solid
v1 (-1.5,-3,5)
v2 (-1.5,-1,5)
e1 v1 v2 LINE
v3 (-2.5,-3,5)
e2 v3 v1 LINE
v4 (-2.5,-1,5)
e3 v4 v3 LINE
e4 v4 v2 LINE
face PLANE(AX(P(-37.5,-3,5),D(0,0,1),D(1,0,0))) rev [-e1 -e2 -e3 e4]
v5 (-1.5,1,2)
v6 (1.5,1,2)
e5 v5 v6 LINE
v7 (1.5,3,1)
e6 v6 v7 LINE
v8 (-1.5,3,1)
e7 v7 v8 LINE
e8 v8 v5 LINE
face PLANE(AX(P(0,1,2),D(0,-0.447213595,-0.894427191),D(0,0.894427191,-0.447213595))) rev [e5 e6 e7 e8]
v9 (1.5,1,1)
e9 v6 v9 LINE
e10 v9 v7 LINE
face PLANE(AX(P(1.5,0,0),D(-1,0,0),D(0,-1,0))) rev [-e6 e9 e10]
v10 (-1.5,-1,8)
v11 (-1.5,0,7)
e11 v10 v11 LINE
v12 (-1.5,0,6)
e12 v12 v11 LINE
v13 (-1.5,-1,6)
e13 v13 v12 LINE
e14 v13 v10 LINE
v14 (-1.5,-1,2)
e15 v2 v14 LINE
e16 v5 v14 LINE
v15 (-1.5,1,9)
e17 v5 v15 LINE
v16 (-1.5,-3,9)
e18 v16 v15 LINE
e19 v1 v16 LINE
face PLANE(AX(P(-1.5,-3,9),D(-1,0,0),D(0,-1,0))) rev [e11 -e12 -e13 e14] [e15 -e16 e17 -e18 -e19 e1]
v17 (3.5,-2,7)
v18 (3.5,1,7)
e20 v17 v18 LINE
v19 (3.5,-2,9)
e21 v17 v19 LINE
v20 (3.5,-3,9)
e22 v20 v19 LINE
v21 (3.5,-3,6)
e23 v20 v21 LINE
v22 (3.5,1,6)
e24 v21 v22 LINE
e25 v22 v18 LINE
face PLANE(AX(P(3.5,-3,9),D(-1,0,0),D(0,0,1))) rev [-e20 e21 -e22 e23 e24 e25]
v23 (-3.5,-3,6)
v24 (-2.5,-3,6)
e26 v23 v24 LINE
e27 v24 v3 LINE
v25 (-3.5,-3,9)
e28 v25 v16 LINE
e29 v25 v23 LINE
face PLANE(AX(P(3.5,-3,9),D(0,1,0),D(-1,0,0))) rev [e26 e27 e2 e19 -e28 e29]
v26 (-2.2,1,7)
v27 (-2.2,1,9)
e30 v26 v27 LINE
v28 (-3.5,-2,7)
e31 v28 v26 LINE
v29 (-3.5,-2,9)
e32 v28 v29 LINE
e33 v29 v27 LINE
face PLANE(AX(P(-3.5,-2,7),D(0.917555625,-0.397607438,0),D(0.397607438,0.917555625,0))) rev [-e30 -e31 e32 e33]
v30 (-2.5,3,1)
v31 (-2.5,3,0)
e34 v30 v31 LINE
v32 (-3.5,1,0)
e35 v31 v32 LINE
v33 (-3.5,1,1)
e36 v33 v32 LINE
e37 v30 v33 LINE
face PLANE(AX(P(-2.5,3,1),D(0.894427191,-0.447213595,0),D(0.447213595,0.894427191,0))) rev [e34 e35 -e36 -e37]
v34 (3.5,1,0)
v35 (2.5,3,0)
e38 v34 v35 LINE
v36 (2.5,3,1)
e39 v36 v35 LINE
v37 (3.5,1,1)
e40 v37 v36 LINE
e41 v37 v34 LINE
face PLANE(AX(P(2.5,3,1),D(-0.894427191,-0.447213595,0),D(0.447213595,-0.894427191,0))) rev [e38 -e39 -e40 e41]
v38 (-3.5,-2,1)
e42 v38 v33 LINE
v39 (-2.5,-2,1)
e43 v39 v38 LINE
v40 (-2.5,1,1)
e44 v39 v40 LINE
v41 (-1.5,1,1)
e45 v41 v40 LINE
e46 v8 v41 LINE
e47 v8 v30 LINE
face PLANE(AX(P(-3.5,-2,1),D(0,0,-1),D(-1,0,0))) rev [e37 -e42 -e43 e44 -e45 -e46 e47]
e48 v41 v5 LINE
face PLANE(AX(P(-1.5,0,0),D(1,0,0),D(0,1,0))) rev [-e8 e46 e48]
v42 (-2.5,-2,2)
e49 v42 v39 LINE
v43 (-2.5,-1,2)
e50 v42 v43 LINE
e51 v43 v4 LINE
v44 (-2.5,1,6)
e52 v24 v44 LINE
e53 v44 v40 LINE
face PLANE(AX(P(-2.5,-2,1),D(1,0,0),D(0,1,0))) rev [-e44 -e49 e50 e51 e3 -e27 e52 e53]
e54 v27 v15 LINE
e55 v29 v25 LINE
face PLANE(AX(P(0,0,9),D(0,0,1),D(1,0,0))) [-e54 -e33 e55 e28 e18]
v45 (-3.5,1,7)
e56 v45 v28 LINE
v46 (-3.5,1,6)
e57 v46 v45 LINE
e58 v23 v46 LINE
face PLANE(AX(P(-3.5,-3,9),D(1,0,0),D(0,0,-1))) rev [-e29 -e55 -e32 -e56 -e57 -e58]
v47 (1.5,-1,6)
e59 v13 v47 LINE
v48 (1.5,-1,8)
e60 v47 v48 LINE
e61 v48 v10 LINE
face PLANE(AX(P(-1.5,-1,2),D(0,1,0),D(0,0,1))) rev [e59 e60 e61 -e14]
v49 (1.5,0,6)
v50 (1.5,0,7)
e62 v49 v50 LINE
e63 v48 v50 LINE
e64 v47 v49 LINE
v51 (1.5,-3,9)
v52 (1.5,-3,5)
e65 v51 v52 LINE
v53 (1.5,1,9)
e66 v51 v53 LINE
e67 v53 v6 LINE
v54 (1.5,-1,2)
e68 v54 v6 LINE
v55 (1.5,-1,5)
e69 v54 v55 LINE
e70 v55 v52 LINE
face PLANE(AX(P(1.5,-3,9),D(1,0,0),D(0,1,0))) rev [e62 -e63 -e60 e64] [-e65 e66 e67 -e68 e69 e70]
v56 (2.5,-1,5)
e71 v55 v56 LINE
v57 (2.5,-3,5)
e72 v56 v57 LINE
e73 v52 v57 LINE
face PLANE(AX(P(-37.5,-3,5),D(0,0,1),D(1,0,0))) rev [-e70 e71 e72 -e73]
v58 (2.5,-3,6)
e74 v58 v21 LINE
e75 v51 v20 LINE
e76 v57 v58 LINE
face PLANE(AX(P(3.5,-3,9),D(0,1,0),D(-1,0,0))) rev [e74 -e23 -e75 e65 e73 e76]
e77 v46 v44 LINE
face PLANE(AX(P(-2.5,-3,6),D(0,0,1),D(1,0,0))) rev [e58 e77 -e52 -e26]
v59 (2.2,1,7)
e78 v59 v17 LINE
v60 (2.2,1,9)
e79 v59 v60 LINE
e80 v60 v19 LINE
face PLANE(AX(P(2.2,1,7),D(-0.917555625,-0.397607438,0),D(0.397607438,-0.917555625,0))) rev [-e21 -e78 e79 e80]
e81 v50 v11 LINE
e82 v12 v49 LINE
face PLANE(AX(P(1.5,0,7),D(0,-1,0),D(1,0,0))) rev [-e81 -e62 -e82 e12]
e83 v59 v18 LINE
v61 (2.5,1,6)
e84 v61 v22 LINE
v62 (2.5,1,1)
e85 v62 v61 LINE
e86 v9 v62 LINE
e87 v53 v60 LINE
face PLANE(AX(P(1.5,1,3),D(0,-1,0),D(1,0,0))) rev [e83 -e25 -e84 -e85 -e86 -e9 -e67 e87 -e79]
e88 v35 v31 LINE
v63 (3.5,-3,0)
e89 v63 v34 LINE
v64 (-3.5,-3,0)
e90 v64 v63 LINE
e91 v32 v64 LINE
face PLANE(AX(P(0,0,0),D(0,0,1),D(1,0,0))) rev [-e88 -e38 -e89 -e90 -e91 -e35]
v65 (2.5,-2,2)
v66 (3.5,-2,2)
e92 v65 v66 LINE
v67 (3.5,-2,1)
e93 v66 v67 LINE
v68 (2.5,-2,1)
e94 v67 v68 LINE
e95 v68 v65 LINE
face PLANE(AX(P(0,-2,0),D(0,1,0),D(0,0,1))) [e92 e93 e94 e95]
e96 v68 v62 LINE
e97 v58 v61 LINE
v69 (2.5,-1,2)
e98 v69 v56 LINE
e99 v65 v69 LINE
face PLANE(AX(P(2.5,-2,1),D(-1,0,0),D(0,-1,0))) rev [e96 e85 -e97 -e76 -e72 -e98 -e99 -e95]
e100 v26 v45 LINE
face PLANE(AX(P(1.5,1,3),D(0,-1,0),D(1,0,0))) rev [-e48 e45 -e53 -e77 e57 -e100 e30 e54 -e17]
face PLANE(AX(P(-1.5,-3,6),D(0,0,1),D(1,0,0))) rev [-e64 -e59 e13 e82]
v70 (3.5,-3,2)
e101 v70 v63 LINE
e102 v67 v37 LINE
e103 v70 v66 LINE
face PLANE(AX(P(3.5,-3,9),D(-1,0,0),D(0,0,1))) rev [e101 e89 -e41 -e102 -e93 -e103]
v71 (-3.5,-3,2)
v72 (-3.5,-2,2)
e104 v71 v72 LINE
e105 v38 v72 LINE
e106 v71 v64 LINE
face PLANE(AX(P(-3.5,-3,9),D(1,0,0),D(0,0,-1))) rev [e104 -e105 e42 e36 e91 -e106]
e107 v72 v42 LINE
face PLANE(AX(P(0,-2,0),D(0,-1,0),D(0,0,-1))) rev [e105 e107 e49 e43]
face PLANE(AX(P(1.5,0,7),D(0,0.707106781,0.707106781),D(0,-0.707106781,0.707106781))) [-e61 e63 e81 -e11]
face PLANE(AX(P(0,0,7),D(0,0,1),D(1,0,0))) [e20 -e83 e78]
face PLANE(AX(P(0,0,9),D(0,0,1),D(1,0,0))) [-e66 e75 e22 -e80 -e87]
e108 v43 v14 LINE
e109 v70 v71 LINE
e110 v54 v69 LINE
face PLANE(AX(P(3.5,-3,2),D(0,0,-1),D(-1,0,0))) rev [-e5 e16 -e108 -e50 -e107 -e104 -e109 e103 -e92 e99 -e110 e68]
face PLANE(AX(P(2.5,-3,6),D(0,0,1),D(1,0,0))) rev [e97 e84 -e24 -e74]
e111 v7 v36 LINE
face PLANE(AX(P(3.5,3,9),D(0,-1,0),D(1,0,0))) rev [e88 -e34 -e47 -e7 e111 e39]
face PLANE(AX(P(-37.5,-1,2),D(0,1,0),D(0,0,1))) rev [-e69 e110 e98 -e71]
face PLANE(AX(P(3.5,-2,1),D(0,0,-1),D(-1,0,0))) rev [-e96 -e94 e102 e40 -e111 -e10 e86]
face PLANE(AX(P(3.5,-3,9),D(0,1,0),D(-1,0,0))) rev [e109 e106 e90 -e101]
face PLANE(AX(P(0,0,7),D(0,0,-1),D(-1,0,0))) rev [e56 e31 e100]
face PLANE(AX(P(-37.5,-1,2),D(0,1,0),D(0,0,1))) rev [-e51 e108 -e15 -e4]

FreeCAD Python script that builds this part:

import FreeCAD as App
import Part
import Sketcher

V = App.Vector
Q = App.Units.Quantity


def add_polygon(sketch, points):
    """Adds a closed chain of lines whose ends are joined by coincident constraints."""
    first, n = sketch.GeometryCount, len(points)
    for a, b in zip(points, points[1:] + points[:1]):
        sketch.addGeometry(Part.LineSegment(App.Vector(*a, 0), App.Vector(*b, 0)), False)
    for i in range(n):
        sketch.addConstraint(Sketcher.Constraint("Coincident", first + i, 2, first + (i + 1) % n, 1))

doc = App.newDocument("Part")
params = doc.addObject("Spreadsheet::Sheet", "Params")
for row, (alias, value) in enumerate([
    ("sketch1_width", "7 mm"),
    ("sketch1_height", "6 mm"),
    ("pad1_length", "9 mm"),
    ("sketch2_width", "3 mm"),
    ("sketch2_height", "1 mm"),
    ("sketch3_width", "1 mm"),
    ("sketch3_height", "2 mm"),
    ("pocket2_length", "1 mm"),
    ("sketch4_width", "1 mm"),
    ("pocket3_length", "5 mm"),
    ("sketch5_width", "1 mm"),
    ("sketch5_height", "4 mm"),
    ("sketch6_width", "1 mm"),
    ("sketch6_height", "5 mm"),
    ("pocket5_length", "2 mm"),
    ("sketch7_width", "3 mm"),
    ("sketch7_height", "2 mm"),
    ("pocket6_length", "6 mm"),
    ("sketch8_width", "3 mm"),
    ("sketch8_height", "1 mm"),
    ("pocket7_length", "6 mm"),
    ("sketch9_width", "3 mm"),
    ("pocket8_length", "6 mm"),
    ("sketch10_width", "3 mm"),
    ("sketch10_height", "4 mm"),
    ("sketch11_width", "3 mm"),
    ("sketch11_height", "1 mm"),
    ("pocket10_length", "6 mm"),
    ("sketch12_width", "7 mm"),
    ("sketch12_height", "2 mm"),
    ("pocket11_length", "7 mm"),
    ("sketch13_width", "3 mm"),
    ("sketch13_height", "1 mm"),
    ("sketch13_width2", "0.7 mm"),
    ("pocket12_length", "2 mm"),
    ("sketch14_width", "3 mm"),
    ("sketch14_height", "1 mm"),
    ("pocket13_length", "2 mm"),
    ("sketch15_width", "3 mm"),
    ("pocket14_length", "2 mm"),
    ("sketch16_width", "2 mm"),
    ("sketch16_height", "1 mm"),
    ("pocket15_length", "1 mm"),
    ("sketch17_width", "2 mm"),
    ("sketch17_height", "1 mm"),
    ("pocket16_length", "1 mm"),
    ("sketch18_width", "2 mm"),
    ("sketch18_height", "3 mm"),
    ("pocket17_length", "40 mm"),
    ("pocket18_length", "3 mm"),
], start=1):
    params.set(f"A{row}", alias)
    params.set(f"B{row}", "=" + value)
    params.setAlias(f"B{row}", alias)

body = doc.addObject("PartDesign::Body", "Body")

# Sketch on XY plane
sketch1 = doc.addObject("Sketcher::SketchObject", "Sketch")
body.addObject(sketch1)
sketch1.AttachmentSupport = (doc.XY_Plane, [""])
sketch1.MapMode = "FlatFace"
add_polygon(sketch1, [(-4, 3), (-4, -3), (4, -3), (4, 3)])  # lines 0-3
sketch1.addConstraint(Sketcher.Constraint("Vertical", 0))
sketch1.addConstraint(Sketcher.Constraint("Horizontal", 1))
sketch1.addConstraint(Sketcher.Constraint("Vertical", 2))
sketch1.addConstraint(Sketcher.Constraint("Horizontal", 3))
sketch1.addConstraint(Sketcher.Constraint("Symmetric", 0, 2, 2, 2, -1, 1))
sketch1.addConstraint(Sketcher.Constraint("DistanceX", 1, 1, 1, 2, Q("7 mm")))
sketch1.addConstraint(Sketcher.Constraint("DistanceY", 0, 2, 0, 1, Q("6 mm")))
sketch1.setExpression("Constraints[9]", "Params.sketch1_width")
sketch1.setExpression("Constraints[10]", "Params.sketch1_height")
pad1 = doc.addObject("PartDesign::Pad", "Pad")
body.addObject(pad1)
pad1.Profile = sketch1
pad1.setExpression("Length", "Params.pad1_length")

# Sketch on XZ plane
sketch2 = doc.addObject("Sketcher::SketchObject", "Sketch001")
body.addObject(sketch2)
sketch2.AttachmentSupport = (doc.XZ_Plane, [""])
sketch2.MapMode = "FlatFace"
sketch2.AttachmentOffset = App.Placement(V(0, 0, -3), App.Rotation())
add_polygon(sketch2, [(-1.5, 8), (-1.5, 9), (1.5, 9), (1.5, 8)])  # lines 0-3
sketch2.addConstraint(Sketcher.Constraint("Vertical", 0))
sketch2.addConstraint(Sketcher.Constraint("Horizontal", 1))
sketch2.addConstraint(Sketcher.Constraint("Vertical", 2))
sketch2.addConstraint(Sketcher.Constraint("Horizontal", 3))
sketch2.addConstraint(Sketcher.Constraint("DistanceX", 1, 1, 1, 2, Q("3 mm")))
sketch2.addConstraint(Sketcher.Constraint("DistanceY", 0, 1, 0, 2, Q("1 mm")))
sketch2.addConstraint(Sketcher.Constraint("DistanceY", -1, 1, 0, 2, Q("9 mm")))
sketch2.addConstraint(Sketcher.Constraint("DistanceX", 0, 2, -1, 1, Q("1.5 mm")))
sketch2.setExpression("Constraints[8]", "Params.sketch2_width")
sketch2.setExpression("Constraints[9]", "Params.sketch2_height")
pocket1 = doc.addObject("PartDesign::Pocket", "Pocket")
body.addObject(pocket1)
pocket1.Profile = sketch2
pocket1.Type = "ThroughAll"
pocket1.Reversed = True

# Sketch on XY plane
sketch3 = doc.addObject("Sketcher::SketchObject", "Sketch002")
body.addObject(sketch3)
sketch3.AttachmentSupport = (doc.XY_Plane, [""])
sketch3.MapMode = "FlatFace"
add_polygon(sketch3, [(3.5, 1), (2.5, 3), (3.5, 3)])  # lines 0-2
add_polygon(sketch3, [(-3.5, 3), (-2.5, 3), (-3.5, 1)])  # lines 3-5
sketch3.addConstraint(Sketcher.Constraint("Horizontal", 1))
sketch3.addConstraint(Sketcher.Constraint("Vertical", 2))
sketch3.addConstraint(Sketcher.Constraint("Horizontal", 3))
sketch3.addConstraint(Sketcher.Constraint("Vertical", 5))
sketch3.addConstraint(Sketcher.Constraint("Symmetric", 0, 2, 3, 2, -2))
sketch3.addConstraint(Sketcher.Constraint("Symmetric", 2, 2, 4, 2, -2))
sketch3.addConstraint(Sketcher.Constraint("DistanceX", 1, 1, 1, 2, Q("1 mm")))
sketch3.addConstraint(Sketcher.Constraint("DistanceY", 2, 2, 2, 1, Q("2 mm")))
sketch3.addConstraint(Sketcher.Constraint("DistanceY", -1, 1, 0, 2, Q("3 mm")))
sketch3.addConstraint(Sketcher.Constraint("DistanceX", 3, 2, 0, 2, Q("5 mm")))
sketch3.setExpression("Constraints[12]", "Params.sketch3_width")
sketch3.setExpression("Constraints[13]", "Params.sketch3_height")
pocket2 = doc.addObject("PartDesign::Pocket", "Pocket001")
body.addObject(pocket2)
pocket2.Profile = sketch3
pocket2.setExpression("Length", "Params.pocket2_length")
pocket2.Reversed = True

# Sketch on XZ plane
sketch4 = doc.addObject("Sketcher::SketchObject", "Sketch003")
body.addObject(sketch4)
sketch4.AttachmentSupport = (doc.XZ_Plane, [""])
sketch4.MapMode = "FlatFace"
sketch4.AttachmentOffset = App.Placement(V(0, 0, -3), App.Rotation())
add_polygon(sketch4, [(2.5, 1), (2.5, 2), (3.5, 2), (3.5, 1)])  # lines 0-3
add_polygon(sketch4, [(-3.5, 1), (-3.5, 2), (-2.5, 2), (-2.5, 1)])  # lines 4-7
sketch4.addConstraint(Sketcher.Constraint("Vertical", 0))
sketch4.addConstraint(Sketcher.Constraint("Horizontal", 1))
sketch4.addConstraint(Sketcher.Constraint("Vertical", 2))
sketch4.addConstraint(Sketcher.Constraint("Horizontal", 3))
sketch4.addConstraint(Sketcher.Constraint("Vertical", 4))
sketch4.addConstraint(Sketcher.Constraint("Horizontal", 5))
sketch4.addConstraint(Sketcher.Constraint("Vertical", 6))
sketch4.addConstraint(Sketcher.Constraint("Horizontal", 7))
sketch4.addConstraint(Sketcher.Constraint("Symmetric", 1, 2, 4, 2, -2))
sketch4.addConstraint(Sketcher.Constraint("Symmetric", 3, 2, 6, 2, -2))
sketch4.addConstraint(Sketcher.Constraint("Equal", 7, 0))
sketch4.addConstraint(Sketcher.Constraint("DistanceX", 1, 1, 1, 2, Q("1 mm")))
sketch4.addConstraint(Sketcher.Constraint("DistanceY", -1, 1, 0, 2, Q("2 mm")))
sketch4.addConstraint(Sketcher.Constraint("DistanceX", 4, 2, 0, 2, Q("6 mm")))
sketch4.setExpression("Constraints[19]", "Params.sketch4_width")
pocket3 = doc.addObject("PartDesign::Pocket", "Pocket002")
body.addObject(pocket3)
pocket3.Profile = sketch4
pocket3.setExpression("Length", "Params.pocket3_length")
pocket3.Reversed = True

# Sketch on XZ plane
sketch5 = doc.addObject("Sketcher::SketchObject", "Sketch004")
body.addObject(sketch5)
sketch5.AttachmentSupport = (doc.XZ_Plane, [""])
sketch5.MapMode = "FlatFace"
sketch5.AttachmentOffset = App.Placement(V(0, 0, -3), App.Rotation())
add_polygon(sketch5, [(2.5, 2), (2.5, 6), (3.5, 6), (3.5, 2)])  # lines 0-3
add_polygon(sketch5, [(-3.5, 2), (-3.5, 6), (-2.5, 6), (-2.5, 2)])  # lines 4-7
sketch5.addConstraint(Sketcher.Constraint("Vertical", 0))
sketch5.addConstraint(Sketcher.Constraint("Horizontal", 1))
sketch5.addConstraint(Sketcher.Constraint("Vertical", 2))
sketch5.addConstraint(Sketcher.Constraint("Horizontal", 3))
sketch5.addConstraint(Sketcher.Constraint("Vertical", 4))
sketch5.addConstraint(Sketcher.Constraint("Horizontal", 5))
sketch5.addConstraint(Sketcher.Constraint("Vertical", 6))
sketch5.addConstraint(Sketcher.Constraint("Horizontal", 7))
sketch5.addConstraint(Sketcher.Constraint("Symmetric", 1, 2, 4, 2, -2))
sketch5.addConstraint(Sketcher.Constraint("Symmetric", 3, 2, 6, 2, -2))
sketch5.addConstraint(Sketcher.Constraint("DistanceX", 1, 1, 1, 2, Q("1 mm")))
sketch5.addConstraint(Sketcher.Constraint("DistanceY", 0, 1, 0, 2, Q("4 mm")))
sketch5.addConstraint(Sketcher.Constraint("DistanceY", -1, 1, 0, 2, Q("6 mm")))
sketch5.addConstraint(Sketcher.Constraint("DistanceX", 4, 2, 0, 2, Q("6 mm")))
sketch5.setExpression("Constraints[18]", "Params.sketch5_width")
sketch5.setExpression("Constraints[19]", "Params.sketch5_height")
pocket4 = doc.addObject("PartDesign::Pocket", "Pocket003")
body.addObject(pocket4)
pocket4.Profile = sketch5
pocket4.Type = "ThroughAll"
pocket4.Reversed = True

# Sketch on XY plane
sketch6 = doc.addObject("Sketcher::SketchObject", "Sketch005")
body.addObject(sketch6)
sketch6.AttachmentSupport = (doc.XY_Plane, [""])
sketch6.MapMode = "FlatFace"
sketch6.AttachmentOffset = App.Placement(V(0, 0, 9), App.Rotation())
add_polygon(sketch6, [(3.5, 3), (2.5, 3), (3.5, -2)])  # lines 0-2
add_polygon(sketch6, [(-2.5, 3), (-3.5, 3), (-3.5, -2)])  # lines 3-5
sketch6.addConstraint(Sketcher.Constraint("Horizontal", 0))
sketch6.addConstraint(Sketcher.Constraint("Vertical", 2))
sketch6.addConstraint(Sketcher.Constraint("Horizontal", 3))
sketch6.addConstraint(Sketcher.Constraint("Vertical", 4))
sketch6.addConstraint(Sketcher.Constraint("Symmetric", 2, 2, 3, 2, -2))
sketch6.addConstraint(Sketcher.Constraint("Horizontal", 1, 2, 4, 2))
sketch6.addConstraint(Sketcher.Constraint("Equal", 0, 3))
sketch6.addConstraint(Sketcher.Constraint("DistanceX", 0, 2, 0, 1, Q("1 mm")))
sketch6.addConstraint(Sketcher.Constraint("DistanceY", 2, 1, 2, 2, Q("5 mm")))
sketch6.addConstraint(Sketcher.Constraint("DistanceY", -1, 1, 0, 2, Q("3 mm")))
sketch6.addConstraint(Sketcher.Constraint("DistanceX", 3, 2, 0, 2, Q("6 mm")))
sketch6.setExpression("Constraints[13]", "Params.sketch6_width")
sketch6.setExpression("Constraints[14]", "Params.sketch6_height")
pocket5 = doc.addObject("PartDesign::Pocket", "Pocket004")
body.addObject(pocket5)
pocket5.Profile = sketch6
pocket5.setExpression("Length", "Params.pocket5_length")

# Sketch on XY plane
sketch7 = doc.addObject("Sketcher::SketchObject", "Sketch006")
body.addObject(sketch7)
sketch7.AttachmentSupport = (doc.XY_Plane, [""])
sketch7.MapMode = "FlatFace"
sketch7.AttachmentOffset = App.Placement(V(0, 0, 8), App.Rotation())
add_polygon(sketch7, [(-1.5, -1), (-1.5, -3), (1.5, -3), (1.5, -1)])  # lines 0-3
sketch7.addConstraint(Sketcher.Constraint("Vertical", 0))
sketch7.addConstraint(Sketcher.Constraint("Horizontal", 1))
sketch7.addConstraint(Sketcher.Constraint("Vertical", 2))
sketch7.addConstraint(Sketcher.Constraint("Horizontal", 3))
sketch7.addConstraint(Sketcher.Constraint("DistanceX", 1, 1, 1, 2, Q("3 mm")))
sketch7.addConstraint(Sketcher.Constraint("DistanceY", 0, 2, 0, 1, Q("2 mm")))
sketch7.addConstraint(Sketcher.Constraint("DistanceY", 0, 2, -1, 1, Q("3 mm")))
sketch7.addConstraint(Sketcher.Constraint("DistanceX", 0, 2, -1, 1, Q("1.5 mm")))
sketch7.setExpression("Constraints[8]", "Params.sketch7_width")
sketch7.setExpression("Constraints[9]", "Params.sketch7_height")
pocket6 = doc.addObject("PartDesign::Pocket", "Pocket005")
body.addObject(pocket6)
pocket6.Profile = sketch7
pocket6.setExpression("Length", "Params.pocket6_length")

# Sketch on XY plane
sketch8 = doc.addObject("Sketcher::SketchObject", "Sketch007")
body.addObject(sketch8)
sketch8.AttachmentSupport = (doc.XY_Plane, [""])
sketch8.MapMode = "FlatFace"
sketch8.AttachmentOffset = App.Placement(V(0, 0, 8), App.Rotation())
add_polygon(sketch8, [(-1.5, 3), (-1.5, 2), (1.5, 2), (1.5, 3)])  # lines 0-3
sketch8.addConstraint(Sketcher.Constraint("Vertical", 0))
sketch8.addConstraint(Sketcher.Constraint("Horizontal", 1))
sketch8.addConstraint(Sketcher.Constraint("Vertical", 2))
sketch8.addConstraint(Sketcher.Constraint("Horizontal", 3))
sketch8.addConstraint(Sketcher.Constraint("DistanceX", 1, 1, 1, 2, Q("3 mm")))
sketch8.addConstraint(Sketcher.Constraint("DistanceY", 0, 2, 0, 1, Q("1 mm")))
sketch8.addConstraint(Sketcher.Constraint("DistanceY", -1, 1, 0, 2, Q("2 mm")))
sketch8.addConstraint(Sketcher.Constraint("DistanceX", 0, 2, -1, 1, Q("1.5 mm")))
sketch8.setExpression("Constraints[8]", "Params.sketch8_width")
sketch8.setExpression("Constraints[9]", "Params.sketch8_height")
pocket7 = doc.addObject("PartDesign::Pocket", "Pocket006")
body.addObject(pocket7)
pocket7.Profile = sketch8
pocket7.setExpression("Length", "Params.pocket7_length")

# Sketch on an angled plane
sketch9 = doc.addObject("Sketcher::SketchObject", "Sketch008")
body.addObject(sketch9)
sketch9.Placement = App.Placement(V(0, 2.3, 6.9), App.Rotation(V(-1, 0, 0), V(0, 0.948683298, -0.316227766), V(0, -0.316227766, -0.948683298), "ZXY"))
add_polygon(sketch9, [(-1.5, -0.3), (-1.5, -3.5), (1.5, -3.5), (1.5, -0.3)])  # lines 0-3
sketch9.addConstraint(Sketcher.Constraint("Vertical", 0))
sketch9.addConstraint(Sketcher.Constraint("Horizontal", 1))
sketch9.addConstraint(Sketcher.Constraint("Vertical", 2))
sketch9.addConstraint(Sketcher.Constraint("Horizontal", 3))
sketch9.addConstraint(Sketcher.Constraint("DistanceX", 1, 1, 1, 2, Q("3 mm")))
sketch9.addConstraint(Sketcher.Constraint("DistanceX", 0, 2, -1, 1, Q("1.5 mm")))
sketch9.addConstraint(Sketcher.Constraint("DistanceY", 0, 2, 0, 1, Q("3.162278 mm")))
sketch9.addConstraint(Sketcher.Constraint("DistanceY", 0, 2, -1, 1, Q("3.478505 mm")))
sketch9.setExpression("Constraints[8]", "Params.sketch9_width")
pocket8 = doc.addObject("PartDesign::Pocket", "Pocket007")
body.addObject(pocket8)
pocket8.Profile = sketch9
pocket8.setExpression("Length", "Params.pocket8_length")

# Sketch on XZ plane
sketch10 = doc.addObject("Sketcher::SketchObject", "Sketch009")
body.addObject(sketch10)
sketch10.AttachmentSupport = (doc.XZ_Plane, [""])
sketch10.MapMode = "FlatFace"
sketch10.AttachmentOffset = App.Placement(V(0, 0, -2), App.Rotation())
add_polygon(sketch10, [(-1.5, 2), (-1.5, 6), (1.5, 6), (1.5, 2)])  # lines 0-3
sketch10.addConstraint(Sketcher.Constraint("Vertical", 0))
sketch10.addConstraint(Sketcher.Constraint("Horizontal", 1))
sketch10.addConstraint(Sketcher.Constraint("Vertical", 2))
sketch10.addConstraint(Sketcher.Constraint("Horizontal", 3))
sketch10.addConstraint(Sketcher.Constraint("DistanceX", 1, 1, 1, 2, Q("3 mm")))
sketch10.addConstraint(Sketcher.Constraint("DistanceY", 0, 1, 0, 2, Q("4 mm")))
sketch10.addConstraint(Sketcher.Constraint("DistanceY", -1, 1, 0, 2, Q("6 mm")))
sketch10.addConstraint(Sketcher.Constraint("DistanceX", 0, 2, -1, 1, Q("1.5 mm")))
sketch10.setExpression("Constraints[8]", "Params.sketch10_width")
sketch10.setExpression("Constraints[9]", "Params.sketch10_height")
pocket9 = doc.addObject("PartDesign::Pocket", "Pocket008")
body.addObject(pocket9)
pocket9.Profile = sketch10
pocket9.Type = "ThroughAll"
pocket9.Reversed = True

# Sketch on XY plane
sketch11 = doc.addObject("Sketcher::SketchObject", "Sketch010")
body.addObject(sketch11)
sketch11.AttachmentSupport = (doc.XY_Plane, [""])
sketch11.MapMode = "FlatFace"
sketch11.AttachmentOffset = App.Placement(V(0, 0, 9), App.Rotation())
add_polygon(sketch11, [(-1.5, 2), (-1.5, 1), (1.5, 1), (1.5, 2)])  # lines 0-3
sketch11.addConstraint(Sketcher.Constraint("Vertical", 0))
sketch11.addConstraint(Sketcher.Constraint("Horizontal", 1))
sketch11.addConstraint(Sketcher.Constraint("Vertical", 2))
sketch11.addConstraint(Sketcher.Constraint("Horizontal", 3))
sketch11.addConstraint(Sketcher.Constraint("DistanceX", 1, 1, 1, 2, Q("3 mm")))
sketch11.addConstraint(Sketcher.Constraint("DistanceY", 0, 2, 0, 1, Q("1 mm")))
sketch11.addConstraint(Sketcher.Constraint("DistanceY", -1, 1, 0, 2, Q("1 mm")))
sketch11.addConstraint(Sketcher.Constraint("DistanceX", 0, 2, -1, 1, Q("1.5 mm")))
sketch11.setExpression("Constraints[8]", "Params.sketch11_width")
sketch11.setExpression("Constraints[9]", "Params.sketch11_height")
pocket10 = doc.addObject("PartDesign::Pocket", "Pocket009")
body.addObject(pocket10)
pocket10.Profile = sketch11
pocket10.setExpression("Length", "Params.pocket10_length")

# Sketch on XY plane
sketch12 = doc.addObject("Sketcher::SketchObject", "Sketch011")
body.addObject(sketch12)
sketch12.AttachmentSupport = (doc.XY_Plane, [""])
sketch12.MapMode = "FlatFace"
sketch12.AttachmentOffset = App.Placement(V(0, 0, 9), App.Rotation())
add_polygon(sketch12, [(-3.5, 3), (-3.5, 1), (3.5, 1), (3.5, 3)])  # lines 0-3
sketch12.addConstraint(Sketcher.Constraint("Vertical", 0))
sketch12.addConstraint(Sketcher.Constraint("Horizontal", 1))
sketch12.addConstraint(Sketcher.Constraint("Vertical", 2))
sketch12.addConstraint(Sketcher.Constraint("Horizontal", 3))
sketch12.addConstraint(Sketcher.Constraint("DistanceX", 1, 1, 1, 2, Q("7 mm")))
sketch12.addConstraint(Sketcher.Constraint("DistanceY", 0, 2, 0, 1, Q("2 mm")))
sketch12.addConstraint(Sketcher.Constraint("DistanceY", -1, 1, 0, 2, Q("1 mm")))
sketch12.addConstraint(Sketcher.Constraint("DistanceX", 0, 2, -1, 1, Q("3.5 mm")))
sketch12.setExpression("Constraints[8]", "Params.sketch12_width")
sketch12.setExpression("Constraints[9]", "Params.sketch12_height")
pocket11 = doc.addObject("PartDesign::Pocket", "Pocket010")
body.addObject(pocket11)
pocket11.Profile = sketch12
pocket11.setExpression("Length", "Params.pocket11_length")

# Sketch on XY plane
sketch13 = doc.addObject("Sketcher::SketchObject", "Sketch012")
body.addObject(sketch13)
sketch13.AttachmentSupport = (doc.XY_Plane, [""])
sketch13.MapMode = "FlatFace"
sketch13.AttachmentOffset = App.Placement(V(0, 0, 9), App.Rotation())
add_polygon(sketch13, [(2.2, 1), (3.5, -2), (2.9, 1)])  # lines 0-2
add_polygon(sketch13, [(-2.2, 1), (-2.9, 1), (-3.5, -2)])  # lines 3-5
add_polygon(sketch13, [(-1.5, 1), (-1.5, 0), (1.5, 0), (1.5, 1)])  # lines 6-9
sketch13.addConstraint(Sketcher.Constraint("Horizontal", 2))
sketch13.addConstraint(Sketcher.Constraint("Horizontal", 3))
sketch13.addConstraint(Sketcher.Constraint("Vertical", 6))
sketch13.addConstraint(Sketcher.Constraint("Horizontal", 7))
sketch13.addConstraint(Sketcher.Constraint("Vertical", 8))
sketch13.addConstraint(Sketcher.Constraint("Horizontal", 9))
sketch13.addConstraint(Sketcher.Constraint("Symmetric", 6, 2, 7, 2, -1, 1))
sketch13.addConstraint(Sketcher.Constraint("Symmetric", 1, 2, 3, 2, -2))
sketch13.addConstraint(Sketcher.Constraint("Symmetric", 0, 2, 4, 2, -2))
sketch13.addConstraint(Sketcher.Constraint("Horizontal", 5, 2, 8, 2))
sketch13.addConstraint(Sketcher.Constraint("Equal", 2, 3))
sketch13.addConstraint(Sketcher.Constraint("DistanceX", 7, 1, 7, 2, Q("3 mm")))
sketch13.addConstraint(Sketcher.Constraint("DistanceY", 6, 2, 6, 1, Q("1 mm")))
sketch13.addConstraint(Sketcher.Constraint("DistanceX", 2, 2, 2, 1, Q("0.7 mm")))
sketch13.addConstraint(Sketcher.Constraint("DistanceY", 0, 2, -1, 1, Q("2 mm")))
sketch13.addConstraint(Sketcher.Constraint("DistanceX", 4, 2, 0, 2, Q("7 mm")))
sketch13.addConstraint(Sketcher.Constraint("DistanceX", -1, 1, 1, 2, Q("2.9 mm")))
sketch13.setExpression("Constraints[21]", "Params.sketch13_width")
sketch13.setExpression("Constraints[22]", "Params.sketch13_height")
sketch13.setExpression("Constraints[23]", "Params.sketch13_width2")
pocket12 = doc.addObject("PartDesign::Pocket", "Pocket011")
body.addObject(pocket12)
pocket12.Profile = sketch13
pocket12.setExpression("Length", "Params.pocket12_length")

# Sketch on XY plane
sketch14 = doc.addObject("Sketcher::SketchObject", "Sketch013")
body.addObject(sketch14)
sketch14.AttachmentSupport = (doc.XY_Plane, [""])
sketch14.MapMode = "FlatFace"
sketch14.AttachmentOffset = App.Placement(V(0, 0, 7), App.Rotation())
add_polygon(sketch14, [(-1.5, 1), (-1.5, 0), (1.5, 0), (1.5, 1)])  # lines 0-3
sketch14.addConstraint(Sketcher.Constraint("Vertical", 0))
sketch14.addConstraint(Sketcher.Constraint("Horizontal", 1))
sketch14.addConstraint(Sketcher.Constraint("Vertical", 2))
sketch14.addConstraint(Sketcher.Constraint("Horizontal", 3))
sketch14.addConstraint(Sketcher.Constraint("Symmetric", 0, 2, 1, 2, -1, 1))
sketch14.addConstraint(Sketcher.Constraint("DistanceX", 1, 1, 1, 2, Q("3 mm")))
sketch14.addConstraint(Sketcher.Constraint("DistanceY", 0, 2, 0, 1, Q("1 mm")))
sketch14.setExpression("Constraints[9]", "Params.sketch14_width")
sketch14.setExpression("Constraints[10]", "Params.sketch14_height")
pocket13 = doc.addObject("PartDesign::Pocket", "Pocket012")
body.addObject(pocket13)
pocket13.Profile = sketch14
pocket13.setExpression("Length", "Params.pocket13_length")

# Sketch on an angled plane
sketch15 = doc.addObject("Sketcher::SketchObject", "Sketch014")
body.addObject(sketch15)
sketch15.Placement = App.Placement(V(0, 1, 2), App.Rotation(V(1, 0, 0), V(0, 0.894427191, -0.447213595), V(0, 0.447213595, 0.894427191), "ZXY"))
add_polygon(sketch15, [(-1.5, 2.2), (-1.5, 0), (1.5, 0), (1.5, 2.2)])  # lines 0-3
sketch15.addConstraint(Sketcher.Constraint("Vertical", 0))
sketch15.addConstraint(Sketcher.Constraint("Horizontal", 1))
sketch15.addConstraint(Sketcher.Constraint("Vertical", 2))
sketch15.addConstraint(Sketcher.Constraint("Horizontal", 3))
sketch15.addConstraint(Sketcher.Constraint("Symmetric", 0, 2, 1, 2, -1, 1))
sketch15.addConstraint(Sketcher.Constraint("DistanceX", 1, 1, 1, 2, Q("3 mm")))
sketch15.addConstraint(Sketcher.Constraint("DistanceY", 0, 2, 0, 1, Q("2.236068 mm")))
sketch15.setExpression("Constraints[9]", "Params.sketch15_width")
pocket14 = doc.addObject("PartDesign::Pocket", "Pocket013")
body.addObject(pocket14)
pocket14.Profile = sketch15
pocket14.setExpression("Length", "Params.pocket14_length")
pocket14.Reversed = True

# Sketch on YZ plane
sketch16 = doc.addObject("Sketcher::SketchObject", "Sketch015")
body.addObject(sketch16)
sketch16.AttachmentSupport = (doc.YZ_Plane, [""])
sketch16.MapMode = "FlatFace"
sketch16.AttachmentOffset = App.Placement(V(0, 0, 2.5), App.Rotation())
add_polygon(sketch16, [(3, 2), (1, 2), (1, 1), (3, 1)])  # lines 0-3
sketch16.addConstraint(Sketcher.Constraint("Horizontal", 0))
sketch16.addConstraint(Sketcher.Constraint("Vertical", 1))
sketch16.addConstraint(Sketcher.Constraint("Horizontal", 2))
sketch16.addConstraint(Sketcher.Constraint("Vertical", 3))
sketch16.addConstraint(Sketcher.Constraint("DistanceX", 0, 2, 0, 1, Q("2 mm")))
sketch16.addConstraint(Sketcher.Constraint("DistanceY", 1, 2, 1, 1, Q("1 mm")))
sketch16.addConstraint(Sketcher.Constraint("DistanceX", -1, 1, 0, 2, Q("1 mm")))
sketch16.addConstraint(Sketcher.Constraint("DistanceY", -1, 1, 0, 2, Q("2 mm")))
sketch16.setExpression("Constraints[8]", "Params.sketch16_width")
sketch16.setExpression("Constraints[9]", "Params.sketch16_height")
pocket15 = doc.addObject("PartDesign::Pocket", "Pocket014")
body.addObject(pocket15)
pocket15.Profile = sketch16
pocket15.setExpression("Length", "Params.pocket15_length")

# Sketch on YZ plane
sketch17 = doc.addObject("Sketcher::SketchObject", "Sketch016")
body.addObject(sketch17)
sketch17.AttachmentSupport = (doc.YZ_Plane, [""])
sketch17.MapMode = "FlatFace"
sketch17.AttachmentOffset = App.Placement(V(0, 0, -2.5), App.Rotation())
add_polygon(sketch17, [(3, 1), (1, 1), (1, 2), (3, 2)])  # lines 0-3
sketch17.addConstraint(Sketcher.Constraint("Horizontal", 0))
sketch17.addConstraint(Sketcher.Constraint("Vertical", 1))
sketch17.addConstraint(Sketcher.Constraint("Horizontal", 2))
sketch17.addConstraint(Sketcher.Constraint("Vertical", 3))
sketch17.addConstraint(Sketcher.Constraint("DistanceX", 0, 2, 0, 1, Q("2 mm")))
sketch17.addConstraint(Sketcher.Constraint("DistanceY", 1, 1, 1, 2, Q("1 mm")))
sketch17.addConstraint(Sketcher.Constraint("DistanceX", -1, 1, 0, 2, Q("1 mm")))
sketch17.addConstraint(Sketcher.Constraint("DistanceY", -1, 1, 0, 2, Q("1 mm")))
sketch17.setExpression("Constraints[8]", "Params.sketch17_width")
sketch17.setExpression("Constraints[9]", "Params.sketch17_height")
pocket16 = doc.addObject("PartDesign::Pocket", "Pocket015")
body.addObject(pocket16)
pocket16.Profile = sketch17
pocket16.setExpression("Length", "Params.pocket16_length")
pocket16.Reversed = True

# Sketch on YZ plane
sketch18 = doc.addObject("Sketcher::SketchObject", "Sketch017")
body.addObject(sketch18)
sketch18.AttachmentSupport = (doc.YZ_Plane, [""])
sketch18.MapMode = "FlatFace"
sketch18.AttachmentOffset = App.Placement(V(0, 0, 2.5), App.Rotation())
add_polygon(sketch18, [(-1, 5), (-3, 5), (-3, 2), (-1, 2)])  # lines 0-3
sketch18.addConstraint(Sketcher.Constraint("Horizontal", 0))
sketch18.addConstraint(Sketcher.Constraint("Vertical", 1))
sketch18.addConstraint(Sketcher.Constraint("Horizontal", 2))
sketch18.addConstraint(Sketcher.Constraint("Vertical", 3))
sketch18.addConstraint(Sketcher.Constraint("DistanceX", 0, 2, 0, 1, Q("2 mm")))
sketch18.addConstraint(Sketcher.Constraint("DistanceY", 1, 2, 1, 1, Q("3 mm")))
sketch18.addConstraint(Sketcher.Constraint("DistanceX", 0, 2, -1, 1, Q("3 mm")))
sketch18.addConstraint(Sketcher.Constraint("DistanceY", -1, 1, 0, 2, Q("5 mm")))
sketch18.setExpression("Constraints[8]", "Params.sketch18_width")
sketch18.setExpression("Constraints[9]", "Params.sketch18_height")
pocket17 = doc.addObject("PartDesign::Pocket", "Pocket016")
body.addObject(pocket17)
pocket17.Profile = sketch18
pocket17.setExpression("Length", "Params.pocket17_length")

# Sketch on YZ plane
sketch19 = doc.addObject("Sketcher::SketchObject", "Sketch018")
body.addObject(sketch19)
sketch19.AttachmentSupport = (doc.YZ_Plane, [""])
sketch19.MapMode = "FlatFace"
sketch19.AttachmentOffset = App.Placement(V(0, 0, -1.5), App.Rotation())
add_polygon(sketch19, [(-1, 8), (0, 7), (0.4, 8.4)])  # lines 0-2
sketch19.addConstraint(Sketcher.Constraint("PointOnObject", 0, 2, -2))
sketch19.addConstraint(Sketcher.Constraint("Angle", 0, Q("-45 deg")))
sketch19.addConstraint(Sketcher.Constraint("DistanceY", -1, 1, 0, 2, Q("7 mm")))
sketch19.addConstraint(Sketcher.Constraint("DistanceX", 2, 2, -1, 1, Q("1 mm")))
sketch19.addConstraint(Sketcher.Constraint("Distance", 2, Q("1.43008 mm")))
sketch19.addConstraint(Sketcher.Constraint("DistanceY", -1, 1, 1, 2, Q("8.435721 mm")))
pocket18 = doc.addObject("PartDesign::Pocket", "Pocket017")
body.addObject(pocket18)
pocket18.Profile = sketch19
pocket18.setExpression("Length", "Params.pocket18_length")
pocket18.Reversed = True

doc.recompute()
